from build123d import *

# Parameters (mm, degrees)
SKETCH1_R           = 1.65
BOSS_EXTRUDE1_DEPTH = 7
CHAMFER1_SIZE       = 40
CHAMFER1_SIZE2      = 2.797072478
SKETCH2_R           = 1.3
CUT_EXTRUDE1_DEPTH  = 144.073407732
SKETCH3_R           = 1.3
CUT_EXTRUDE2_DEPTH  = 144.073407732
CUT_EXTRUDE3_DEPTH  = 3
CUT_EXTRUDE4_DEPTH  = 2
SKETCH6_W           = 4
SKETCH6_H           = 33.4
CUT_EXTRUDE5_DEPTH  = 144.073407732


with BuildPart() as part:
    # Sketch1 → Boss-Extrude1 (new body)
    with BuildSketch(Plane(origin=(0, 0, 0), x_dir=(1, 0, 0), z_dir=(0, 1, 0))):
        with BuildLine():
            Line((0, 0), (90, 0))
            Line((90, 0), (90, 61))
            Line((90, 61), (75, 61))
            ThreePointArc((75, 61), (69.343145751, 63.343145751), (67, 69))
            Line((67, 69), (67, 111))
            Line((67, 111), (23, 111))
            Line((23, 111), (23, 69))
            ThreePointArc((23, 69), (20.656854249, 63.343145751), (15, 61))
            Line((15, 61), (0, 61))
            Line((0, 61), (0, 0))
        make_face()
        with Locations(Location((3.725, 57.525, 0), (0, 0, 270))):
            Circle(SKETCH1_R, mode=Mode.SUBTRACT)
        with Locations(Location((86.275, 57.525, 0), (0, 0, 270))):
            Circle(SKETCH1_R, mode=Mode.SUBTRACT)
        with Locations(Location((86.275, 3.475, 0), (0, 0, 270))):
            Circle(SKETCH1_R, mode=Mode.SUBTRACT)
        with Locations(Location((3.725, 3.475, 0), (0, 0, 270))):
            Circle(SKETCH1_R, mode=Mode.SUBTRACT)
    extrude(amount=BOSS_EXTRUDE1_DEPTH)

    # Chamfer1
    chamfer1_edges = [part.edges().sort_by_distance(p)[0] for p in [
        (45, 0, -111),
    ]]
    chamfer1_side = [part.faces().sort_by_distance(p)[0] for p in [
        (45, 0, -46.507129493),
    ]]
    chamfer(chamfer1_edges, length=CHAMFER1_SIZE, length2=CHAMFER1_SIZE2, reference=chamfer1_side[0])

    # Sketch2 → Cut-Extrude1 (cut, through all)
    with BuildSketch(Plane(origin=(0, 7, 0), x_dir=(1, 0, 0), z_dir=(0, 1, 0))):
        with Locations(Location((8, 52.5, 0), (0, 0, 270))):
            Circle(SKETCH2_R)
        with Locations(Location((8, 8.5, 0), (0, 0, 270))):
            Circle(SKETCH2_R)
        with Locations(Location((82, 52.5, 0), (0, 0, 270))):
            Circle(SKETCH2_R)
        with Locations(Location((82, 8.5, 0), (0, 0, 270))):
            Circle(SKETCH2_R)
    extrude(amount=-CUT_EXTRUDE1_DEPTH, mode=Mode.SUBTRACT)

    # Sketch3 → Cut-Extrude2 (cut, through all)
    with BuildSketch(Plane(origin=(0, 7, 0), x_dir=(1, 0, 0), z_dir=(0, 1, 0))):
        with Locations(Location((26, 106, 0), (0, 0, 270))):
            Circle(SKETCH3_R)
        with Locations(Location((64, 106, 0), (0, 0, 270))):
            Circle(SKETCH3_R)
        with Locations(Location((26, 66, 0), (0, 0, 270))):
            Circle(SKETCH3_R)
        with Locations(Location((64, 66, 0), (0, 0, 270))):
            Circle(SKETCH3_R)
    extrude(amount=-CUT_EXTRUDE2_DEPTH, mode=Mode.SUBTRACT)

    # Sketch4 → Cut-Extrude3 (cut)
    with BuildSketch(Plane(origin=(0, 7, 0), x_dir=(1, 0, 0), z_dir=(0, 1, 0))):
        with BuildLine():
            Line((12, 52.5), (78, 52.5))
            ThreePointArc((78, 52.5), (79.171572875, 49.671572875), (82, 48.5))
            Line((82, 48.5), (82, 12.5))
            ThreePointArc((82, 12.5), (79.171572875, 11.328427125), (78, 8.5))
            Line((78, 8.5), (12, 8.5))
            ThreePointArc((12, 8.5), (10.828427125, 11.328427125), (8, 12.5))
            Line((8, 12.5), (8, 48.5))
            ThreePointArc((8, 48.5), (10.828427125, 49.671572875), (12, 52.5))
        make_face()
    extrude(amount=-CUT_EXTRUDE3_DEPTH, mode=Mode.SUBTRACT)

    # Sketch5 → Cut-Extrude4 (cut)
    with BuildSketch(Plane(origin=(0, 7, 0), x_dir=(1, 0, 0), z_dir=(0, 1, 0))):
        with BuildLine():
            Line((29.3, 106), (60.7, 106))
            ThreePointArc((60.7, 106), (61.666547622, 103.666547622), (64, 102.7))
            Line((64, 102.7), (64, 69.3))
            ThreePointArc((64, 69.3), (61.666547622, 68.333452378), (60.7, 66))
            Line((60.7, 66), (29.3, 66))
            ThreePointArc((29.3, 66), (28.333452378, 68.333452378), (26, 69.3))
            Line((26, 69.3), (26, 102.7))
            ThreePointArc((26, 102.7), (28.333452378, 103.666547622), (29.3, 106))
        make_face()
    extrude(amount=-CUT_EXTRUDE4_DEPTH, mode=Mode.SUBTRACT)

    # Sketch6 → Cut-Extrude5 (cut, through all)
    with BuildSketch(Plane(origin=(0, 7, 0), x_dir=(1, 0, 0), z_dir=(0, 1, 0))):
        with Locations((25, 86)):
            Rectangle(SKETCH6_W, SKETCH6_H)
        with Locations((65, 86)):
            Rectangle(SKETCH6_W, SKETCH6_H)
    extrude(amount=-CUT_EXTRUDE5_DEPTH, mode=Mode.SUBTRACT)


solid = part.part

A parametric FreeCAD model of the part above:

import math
import FreeCAD as App
import Part
import Sketcher


def edges_at(feature, points):
    """Names of the edges that pass closest to the given points."""
    edges = feature.Shape.Edges
    near = lambda p: min(range(len(edges)), key=lambda i: edges[i].distToShape(Part.Vertex(*p))[0])
    return sorted({f"Edge{near(p) + 1}" for p in points})


def add_polygon(sketch, points):
    """Adds a closed chain of lines whose ends are joined by coincident constraints."""
    first, n = sketch.GeometryCount, len(points)
    for a, b in zip(points, points[1:] + points[:1]):
        sketch.addGeometry(Part.LineSegment(App.Vector(*a, 0), App.Vector(*b, 0)), False)
    for i in range(n):
        sketch.addConstraint(Sketcher.Constraint("Coincident", first + i, 2, first + (i + 1) % n, 1))

doc = App.newDocument("Part")
body = doc.addObject("PartDesign::Body", "Body")

# Sketch on XZ plane
sketch1 = body.newObject("Sketcher::SketchObject", "Sketch")
sketch1.AttachmentSupport = (doc.getObject("XZ_Plane"), [""])
sketch1.MapMode = "FlatFace"
sketch1.addGeometry([
    Part.LineSegment(App.Vector(0, 0, 0), App.Vector(90, 0, 0)),  # 0
    Part.LineSegment(App.Vector(90, 0, 0), App.Vector(90, -61, 0)),  # 1
    Part.LineSegment(App.Vector(90, -61, 0), App.Vector(75, -61, 0)),  # 2
    Part.ArcOfCircle(Part.Circle(App.Vector(75, -69, 0), App.Vector(0, 0, 1), 8), math.radians(90), math.radians(180)),  # 3
    Part.LineSegment(App.Vector(67, -69, 0), App.Vector(67, -111, 0)),  # 4
    Part.LineSegment(App.Vector(67, -111, 0), App.Vector(23, -111, 0)),  # 5
    Part.LineSegment(App.Vector(23, -111, 0), App.Vector(23, -69, 0)),  # 6
    Part.ArcOfCircle(Part.Circle(App.Vector(15, -69, 0), App.Vector(0, 0, 1), 8), math.radians(0), math.radians(90)),  # 7
    Part.LineSegment(App.Vector(15, -61, 0), App.Vector(0, -61, 0)),  # 8
    Part.LineSegment(App.Vector(0, -61, 0), App.Vector(0, 0, 0)),  # 9
    Part.Circle(App.Vector(3.725, -3.475, 0), App.Vector(0, 0, 1), 1.65),  # 10
    Part.Circle(App.Vector(86.275, -3.475, 0), App.Vector(0, 0, 1), 1.65),  # 11
    Part.Circle(App.Vector(3.725, -57.525, 0), App.Vector(0, 0, 1), 1.65),  # 12
    Part.Circle(App.Vector(86.275, -57.525, 0), App.Vector(0, 0, 1), 1.65),  # 13
], False)
sketch1.addConstraint([
    Sketcher.Constraint("Coincident", 0, 2, 1, 1),
    Sketcher.Constraint("Coincident", 1, 2, 2, 1),
    Sketcher.Constraint("Tangent", 2, 2, 3, 1),
    Sketcher.Constraint("Tangent", 3, 2, 4, 1),
    Sketcher.Constraint("Coincident", 4, 2, 5, 1),
    Sketcher.Constraint("Coincident", 5, 2, 6, 1),
    Sketcher.Constraint("Tangent", 6, 2, 7, 1),
    Sketcher.Constraint("Tangent", 7, 2, 8, 1),
    Sketcher.Constraint("Coincident", 8, 2, 9, 1),
    Sketcher.Constraint("Coincident", 9, 2, 0, 1),
    Sketcher.Constraint("Horizontal", 0),
    Sketcher.Constraint("Vertical", 1),
    Sketcher.Constraint("Horizontal", 2),
    Sketcher.Constraint("Vertical", 4),
    Sketcher.Constraint("Horizontal", 5),
    Sketcher.Constraint("Vertical", 6),
    Sketcher.Constraint("Horizontal", 8),
    Sketcher.Constraint("Vertical", 9),
    Sketcher.Constraint("Coincident", 9, 2, -1, 1),
    Sketcher.Constraint("Equal", 3, 7),
    Sketcher.Constraint("Equal", 10, 11),
    Sketcher.Constraint("Equal", 11, 12),
    Sketcher.Constraint("Equal", 12, 13),
    Sketcher.Constraint("Horizontal", 3, 3, 7, 3),
    Sketcher.Constraint("Horizontal", 10, 3, 11, 3),
    Sketcher.Constraint("Horizontal", 12, 3, 13, 3),
    Sketcher.Constraint("Vertical", 10, 3, 12, 3),
    Sketcher.Constraint("Vertical", 11, 3, 13, 3),
    Sketcher.Constraint("Equal", 2, 8),
    Sketcher.Constraint("Radius", 3, 8.0),
    Sketcher.Constraint("Diameter", 10, 3.3),
    Sketcher.Constraint("DistanceX", 0, 1, 0, 2, 90.0),
    Sketcher.Constraint("DistanceX", 2, 2, 2, 1, 15.0),
    Sketcher.Constraint("DistanceY", 1, 2, 1, 1, 61.0),
    Sketcher.Constraint("DistanceY", 4, 2, 4, 1, 42.0),
    Sketcher.Constraint("DistanceX", 10, 3, 11, 3, 82.55),
    Sketcher.Constraint("DistanceY", 12, 3, 10, 3, 54.05),
    Sketcher.Constraint("DistanceX", -1, 1, 10, 3, 3.725),
    Sketcher.Constraint("DistanceY", 10, 3, -1, 1, 3.475),
])
pad1 = body.newObject("PartDesign::Pad", "Pad")
pad1.Profile = sketch1
pad1.Length = 7
pad1.Reversed = True
doc.recompute()

chamfer = body.newObject("PartDesign::Chamfer", "Chamfer")
chamfer.Base = (pad1, edges_at(pad1, [(45, 0, -111)]))
chamfer.ChamferType = "Two distances"
chamfer.Size = 40
chamfer.Size2 = 2.797072
chamfer.FlipDirection = True

# Sketch on XZ plane
sketch2 = body.newObject("Sketcher::SketchObject", "Sketch001")
sketch2.AttachmentSupport = (doc.getObject("XZ_Plane"), [""])
sketch2.MapMode = "FlatFace"
sketch2.AttachmentOffset = App.Placement(App.Vector(0, 0, -7), App.Rotation())
sketch2.addGeometry([
    Part.Circle(App.Vector(8, -52.5, 0), App.Vector(0, 0, 1), 1.3),
    Part.Circle(App.Vector(8, -8.5, 0), App.Vector(0, 0, 1), 1.3),
    Part.Circle(App.Vector(82, -52.5, 0), App.Vector(0, 0, 1), 1.3),
    Part.Circle(App.Vector(82, -8.5, 0), App.Vector(0, 0, 1), 1.3),
], False)
sketch2.addConstraint([
    Sketcher.Constraint("Equal", 0, 1),
    Sketcher.Constraint("Equal", 1, 2),
    Sketcher.Constraint("Equal", 2, 3),
    Sketcher.Constraint("Horizontal", 0, 3, 2, 3),
    Sketcher.Constraint("Horizontal", 1, 3, 3, 3),
    Sketcher.Constraint("Vertical", 0, 3, 1, 3),
    Sketcher.Constraint("Vertical", 2, 3, 3, 3),
    Sketcher.Constraint("Diameter", 0, 2.6),
    Sketcher.Constraint("DistanceX", -1, 1, 0, 3, 8.0),
    Sketcher.Constraint("DistanceX", -1, 1, 2, 3, 82.0),
    Sketcher.Constraint("DistanceY", 0, 3, 1, 3, 44.0),
    Sketcher.Constraint("DistanceY", 0, 3, -1, 1, 52.5),
])
pocket1 = body.newObject("PartDesign::Pocket", "Pocket")
pocket1.Profile = sketch2
pocket1.Type = "ThroughAll"
pocket1.Reversed = True

# Sketch on XZ plane
sketch3 = body.newObject("Sketcher::SketchObject", "Sketch002")
sketch3.AttachmentSupport = (doc.getObject("XZ_Plane"), [""])
sketch3.MapMode = "FlatFace"
sketch3.AttachmentOffset = App.Placement(App.Vector(0, 0, -7), App.Rotation())
sketch3.addGeometry([
    Part.Circle(App.Vector(26, -106, 0), App.Vector(0, 0, 1), 1.3),
    Part.Circle(App.Vector(64, -106, 0), App.Vector(0, 0, 1), 1.3),
    Part.Circle(App.Vector(26, -66, 0), App.Vector(0, 0, 1), 1.3),
    Part.Circle(App.Vector(64, -66, 0), App.Vector(0, 0, 1), 1.3),
], False)
sketch3.addConstraint([
    Sketcher.Constraint("Equal", 0, 1),
    Sketcher.Constraint("Equal", 1, 2),
    Sketcher.Constraint("Equal", 2, 3),
    Sketcher.Constraint("Horizontal", 0, 3, 1, 3),
    Sketcher.Constraint("Horizontal", 2, 3, 3, 3),
    Sketcher.Constraint("Vertical", 0, 3, 2, 3),
    Sketcher.Constraint("Vertical", 1, 3, 3, 3),
    Sketcher.Constraint("Diameter", 0, 2.6),
    Sketcher.Constraint("DistanceX", -1, 1, 0, 3, 26.0),
    Sketcher.Constraint("DistanceY", 0, 3, -1, 1, 106.0),
    Sketcher.Constraint("DistanceX", -1, 1, 1, 3, 64.0),
    Sketcher.Constraint("DistanceY", 2, 3, -1, 1, 66.0),
])
pocket2 = body.newObject("PartDesign::Pocket", "Pocket001")
pocket2.Profile = sketch3
pocket2.Type = "ThroughAll"
pocket2.Reversed = True

# Sketch on XZ plane
sketch4 = body.newObject("Sketcher::SketchObject", "Sketch003")
sketch4.AttachmentSupport = (doc.getObject("XZ_Plane"), [""])
sketch4.MapMode = "FlatFace"
sketch4.AttachmentOffset = App.Placement(App.Vector(0, 0, -7), App.Rotation())
sketch4.addGeometry([
    Part.LineSegment(App.Vector(78, -52.5, 0), App.Vector(12, -52.5, 0)),  # 0
    Part.ArcOfCircle(Part.Circle(App.Vector(8, -52.5, 0), App.Vector(0, 0, 1), 4), math.radians(0), math.radians(90)),  # 1
    Part.LineSegment(App.Vector(8, -48.5, 0), App.Vector(8, -12.5, 0)),  # 2
    Part.ArcOfCircle(Part.Circle(App.Vector(8, -8.5, 0), App.Vector(0, 0, 1), 4), math.radians(-90), math.radians(0)),  # 3
    Part.LineSegment(App.Vector(12, -8.5, 0), App.Vector(78, -8.5, 0)),  # 4
    Part.ArcOfCircle(Part.Circle(App.Vector(82, -8.5, 0), App.Vector(0, 0, 1), 4), math.radians(180), math.radians(270)),  # 5
    Part.LineSegment(App.Vector(82, -12.5, 0), App.Vector(82, -48.5, 0)),  # 6
    Part.ArcOfCircle(Part.Circle(App.Vector(82, -52.5, 0), App.Vector(0, 0, 1), 4), math.radians(90), math.radians(180)),  # 7
], False)
sketch4.addConstraint([
    Sketcher.Constraint("Coincident", 0, 2, 1, 1),
    Sketcher.Constraint("Coincident", 1, 2, 2, 1),
    Sketcher.Constraint("Coincident", 2, 2, 3, 1),
    Sketcher.Constraint("Coincident", 3, 2, 4, 1),
    Sketcher.Constraint("Coincident", 4, 2, 5, 1),
    Sketcher.Constraint("Coincident", 5, 2, 6, 1),
    Sketcher.Constraint("Coincident", 6, 2, 7, 1),
    Sketcher.Constraint("Coincident", 7, 2, 0, 1),
    Sketcher.Constraint("Horizontal", 0),
    Sketcher.Constraint("Vertical", 2),
    Sketcher.Constraint("Horizontal", 4),
    Sketcher.Constraint("Vertical", 6),
    Sketcher.Constraint("Equal", 1, 3),
    Sketcher.Constraint("Equal", 3, 5),
    Sketcher.Constraint("Equal", 5, 7),
    Sketcher.Constraint("Horizontal", 3, 3, 5, 3),
    Sketcher.Constraint("Horizontal", 1, 3, 7, 3),
    Sketcher.Constraint("Horizontal", 7, 3, 0, 2),
    Sketcher.Constraint("Horizontal", 5, 3, 3, 2),
    Sketcher.Constraint("Vertical", 1, 3, 3, 3),
    Sketcher.Constraint("Vertical", 5, 3, 7, 3),
    Sketcher.Constraint("Vertical", 3, 3, 1, 2),
    Sketcher.Constraint("Vertical", 7, 3, 5, 2),
    Sketcher.Constraint("Radius", 1, 4.0),
    Sketcher.Constraint("DistanceX", 0, 2, 0, 1, 66.0),
    Sketcher.Constraint("DistanceY", 2, 1, 2, 2, 36.0),
    Sketcher.Constraint("DistanceX", -1, 1, 1, 3, 8.0),
    Sketcher.Constraint("DistanceY", 1, 3, -1, 1, 52.5),
])
pocket3 = body.newObject("PartDesign::Pocket", "Pocket002")
pocket3.Profile = sketch4
pocket3.Length = 3
pocket3.Reversed = True

# Sketch on XZ plane
sketch5 = body.newObject("Sketcher::SketchObject", "Sketch004")
sketch5.AttachmentSupport = (doc.getObject("XZ_Plane"), [""])
sketch5.MapMode = "FlatFace"
sketch5.AttachmentOffset = App.Placement(App.Vector(0, 0, -7), App.Rotation())
sketch5.addGeometry([
    Part.LineSegment(App.Vector(60.7, -106, 0), App.Vector(29.3, -106, 0)),  # 0
    Part.ArcOfCircle(Part.Circle(App.Vector(26, -106, 0), App.Vector(0, 0, 1), 3.3), math.radians(0), math.radians(90)),  # 1
    Part.LineSegment(App.Vector(26, -102.7, 0), App.Vector(26, -69.3, 0)),  # 2
    Part.ArcOfCircle(Part.Circle(App.Vector(26, -66, 0), App.Vector(0, 0, 1), 3.3), math.radians(-90), math.radians(0)),  # 3
    Part.LineSegment(App.Vector(29.3, -66, 0), App.Vector(60.7, -66, 0)),  # 4
    Part.ArcOfCircle(Part.Circle(App.Vector(64, -66, 0), App.Vector(0, 0, 1), 3.3), math.radians(180), math.radians(270)),  # 5
    Part.LineSegment(App.Vector(64, -69.3, 0), App.Vector(64, -102.7, 0)),  # 6
    Part.ArcOfCircle(Part.Circle(App.Vector(64, -106, 0), App.Vector(0, 0, 1), 3.3), math.radians(90), math.radians(180)),  # 7
], False)
sketch5.addConstraint([
    Sketcher.Constraint("Coincident", 0, 2, 1, 1),
    Sketcher.Constraint("Coincident", 1, 2, 2, 1),
    Sketcher.Constraint("Coincident", 2, 2, 3, 1),
    Sketcher.Constraint("Coincident", 3, 2, 4, 1),
    Sketcher.Constraint("Coincident", 4, 2, 5, 1),
    Sketcher.Constraint("Coincident", 5, 2, 6, 1),
    Sketcher.Constraint("Coincident", 6, 2, 7, 1),
    Sketcher.Constraint("Coincident", 7, 2, 0, 1),
    Sketcher.Constraint("Horizontal", 0),
    Sketcher.Constraint("Vertical", 2),
    Sketcher.Constraint("Horizontal", 4),
    Sketcher.Constraint("Vertical", 6),
    Sketcher.Constraint("Equal", 1, 3),
    Sketcher.Constraint("Equal", 3, 5),
    Sketcher.Constraint("Equal", 5, 7),
    Sketcher.Constraint("Horizontal", 3, 3, 5, 3),
    Sketcher.Constraint("Horizontal", 1, 3, 7, 3),
    Sketcher.Constraint("Horizontal", 7, 3, 0, 2),
    Sketcher.Constraint("Horizontal", 5, 3, 3, 2),
    Sketcher.Constraint("Vertical", 1, 3, 3, 3),
    Sketcher.Constraint("Vertical", 5, 3, 7, 3),
    Sketcher.Constraint("Vertical", 3, 3, 1, 2),
    Sketcher.Constraint("Vertical", 7, 3, 5, 2),
    Sketcher.Constraint("Radius", 1, 3.3),
    Sketcher.Constraint("DistanceX", 0, 2, 0, 1, 31.4),
    Sketcher.Constraint("DistanceY", 2, 1, 2, 2, 33.4),
    Sketcher.Constraint("DistanceX", -1, 1, 1, 3, 26.0),
    Sketcher.Constraint("DistanceY", 1, 3, -1, 1, 106.0),
])
pocket4 = body.newObject("PartDesign::Pocket", "Pocket003")
pocket4.Profile = sketch5
pocket4.Length = 2
pocket4.Reversed = True

# Sketch on XZ plane
sketch6 = body.newObject("Sketcher::SketchObject", "Sketch005")
sketch6.AttachmentSupport = (doc.getObject("XZ_Plane"), [""])
sketch6.MapMode = "FlatFace"
sketch6.AttachmentOffset = App.Placement(App.Vector(0, 0, -7), App.Rotation())
add_polygon(sketch6, [(23, -102.7), (23, -69.3), (27, -69.3), (27, -102.7)])  # lines 0-3
add_polygon(sketch6, [(63, -102.7), (63, -69.3), (67, -69.3), (67, -102.7)])  # lines 4-7
sketch6.addConstraint([
    Sketcher.Constraint("Vertical", 0),
    Sketcher.Constraint("Horizontal", 1),
    Sketcher.Constraint("Vertical", 2),
    Sketcher.Constraint("Horizontal", 3),
    Sketcher.Constraint("Vertical", 4),
    Sketcher.Constraint("Horizontal", 5),
    Sketcher.Constraint("Vertical", 6),
    Sketcher.Constraint("Horizontal", 7),
    Sketcher.Constraint("Horizontal", 1, 2, 4, 2),
    Sketcher.Constraint("Horizontal", 3, 2, 6, 2),
    Sketcher.Constraint("Equal", 3, 5),
    Sketcher.Constraint("DistanceX", 1, 1, 1, 2, 4.0),
    Sketcher.Constraint("DistanceY", 0, 1, 0, 2, 33.4),
    Sketcher.Constraint("DistanceX", -1, 1, 0, 2, 23.0),
    Sketcher.Constraint("DistanceX", -1, 1, 4, 2, 63.0),
    Sketcher.Constraint("DistanceY", 0, 2, -1, 1, 69.3),
])
pocket5 = body.newObject("PartDesign::Pocket", "Pocket004")
pocket5.Profile = sketch6
pocket5.Type = "ThroughAll"
pocket5.Reversed = True

doc.recompute()
